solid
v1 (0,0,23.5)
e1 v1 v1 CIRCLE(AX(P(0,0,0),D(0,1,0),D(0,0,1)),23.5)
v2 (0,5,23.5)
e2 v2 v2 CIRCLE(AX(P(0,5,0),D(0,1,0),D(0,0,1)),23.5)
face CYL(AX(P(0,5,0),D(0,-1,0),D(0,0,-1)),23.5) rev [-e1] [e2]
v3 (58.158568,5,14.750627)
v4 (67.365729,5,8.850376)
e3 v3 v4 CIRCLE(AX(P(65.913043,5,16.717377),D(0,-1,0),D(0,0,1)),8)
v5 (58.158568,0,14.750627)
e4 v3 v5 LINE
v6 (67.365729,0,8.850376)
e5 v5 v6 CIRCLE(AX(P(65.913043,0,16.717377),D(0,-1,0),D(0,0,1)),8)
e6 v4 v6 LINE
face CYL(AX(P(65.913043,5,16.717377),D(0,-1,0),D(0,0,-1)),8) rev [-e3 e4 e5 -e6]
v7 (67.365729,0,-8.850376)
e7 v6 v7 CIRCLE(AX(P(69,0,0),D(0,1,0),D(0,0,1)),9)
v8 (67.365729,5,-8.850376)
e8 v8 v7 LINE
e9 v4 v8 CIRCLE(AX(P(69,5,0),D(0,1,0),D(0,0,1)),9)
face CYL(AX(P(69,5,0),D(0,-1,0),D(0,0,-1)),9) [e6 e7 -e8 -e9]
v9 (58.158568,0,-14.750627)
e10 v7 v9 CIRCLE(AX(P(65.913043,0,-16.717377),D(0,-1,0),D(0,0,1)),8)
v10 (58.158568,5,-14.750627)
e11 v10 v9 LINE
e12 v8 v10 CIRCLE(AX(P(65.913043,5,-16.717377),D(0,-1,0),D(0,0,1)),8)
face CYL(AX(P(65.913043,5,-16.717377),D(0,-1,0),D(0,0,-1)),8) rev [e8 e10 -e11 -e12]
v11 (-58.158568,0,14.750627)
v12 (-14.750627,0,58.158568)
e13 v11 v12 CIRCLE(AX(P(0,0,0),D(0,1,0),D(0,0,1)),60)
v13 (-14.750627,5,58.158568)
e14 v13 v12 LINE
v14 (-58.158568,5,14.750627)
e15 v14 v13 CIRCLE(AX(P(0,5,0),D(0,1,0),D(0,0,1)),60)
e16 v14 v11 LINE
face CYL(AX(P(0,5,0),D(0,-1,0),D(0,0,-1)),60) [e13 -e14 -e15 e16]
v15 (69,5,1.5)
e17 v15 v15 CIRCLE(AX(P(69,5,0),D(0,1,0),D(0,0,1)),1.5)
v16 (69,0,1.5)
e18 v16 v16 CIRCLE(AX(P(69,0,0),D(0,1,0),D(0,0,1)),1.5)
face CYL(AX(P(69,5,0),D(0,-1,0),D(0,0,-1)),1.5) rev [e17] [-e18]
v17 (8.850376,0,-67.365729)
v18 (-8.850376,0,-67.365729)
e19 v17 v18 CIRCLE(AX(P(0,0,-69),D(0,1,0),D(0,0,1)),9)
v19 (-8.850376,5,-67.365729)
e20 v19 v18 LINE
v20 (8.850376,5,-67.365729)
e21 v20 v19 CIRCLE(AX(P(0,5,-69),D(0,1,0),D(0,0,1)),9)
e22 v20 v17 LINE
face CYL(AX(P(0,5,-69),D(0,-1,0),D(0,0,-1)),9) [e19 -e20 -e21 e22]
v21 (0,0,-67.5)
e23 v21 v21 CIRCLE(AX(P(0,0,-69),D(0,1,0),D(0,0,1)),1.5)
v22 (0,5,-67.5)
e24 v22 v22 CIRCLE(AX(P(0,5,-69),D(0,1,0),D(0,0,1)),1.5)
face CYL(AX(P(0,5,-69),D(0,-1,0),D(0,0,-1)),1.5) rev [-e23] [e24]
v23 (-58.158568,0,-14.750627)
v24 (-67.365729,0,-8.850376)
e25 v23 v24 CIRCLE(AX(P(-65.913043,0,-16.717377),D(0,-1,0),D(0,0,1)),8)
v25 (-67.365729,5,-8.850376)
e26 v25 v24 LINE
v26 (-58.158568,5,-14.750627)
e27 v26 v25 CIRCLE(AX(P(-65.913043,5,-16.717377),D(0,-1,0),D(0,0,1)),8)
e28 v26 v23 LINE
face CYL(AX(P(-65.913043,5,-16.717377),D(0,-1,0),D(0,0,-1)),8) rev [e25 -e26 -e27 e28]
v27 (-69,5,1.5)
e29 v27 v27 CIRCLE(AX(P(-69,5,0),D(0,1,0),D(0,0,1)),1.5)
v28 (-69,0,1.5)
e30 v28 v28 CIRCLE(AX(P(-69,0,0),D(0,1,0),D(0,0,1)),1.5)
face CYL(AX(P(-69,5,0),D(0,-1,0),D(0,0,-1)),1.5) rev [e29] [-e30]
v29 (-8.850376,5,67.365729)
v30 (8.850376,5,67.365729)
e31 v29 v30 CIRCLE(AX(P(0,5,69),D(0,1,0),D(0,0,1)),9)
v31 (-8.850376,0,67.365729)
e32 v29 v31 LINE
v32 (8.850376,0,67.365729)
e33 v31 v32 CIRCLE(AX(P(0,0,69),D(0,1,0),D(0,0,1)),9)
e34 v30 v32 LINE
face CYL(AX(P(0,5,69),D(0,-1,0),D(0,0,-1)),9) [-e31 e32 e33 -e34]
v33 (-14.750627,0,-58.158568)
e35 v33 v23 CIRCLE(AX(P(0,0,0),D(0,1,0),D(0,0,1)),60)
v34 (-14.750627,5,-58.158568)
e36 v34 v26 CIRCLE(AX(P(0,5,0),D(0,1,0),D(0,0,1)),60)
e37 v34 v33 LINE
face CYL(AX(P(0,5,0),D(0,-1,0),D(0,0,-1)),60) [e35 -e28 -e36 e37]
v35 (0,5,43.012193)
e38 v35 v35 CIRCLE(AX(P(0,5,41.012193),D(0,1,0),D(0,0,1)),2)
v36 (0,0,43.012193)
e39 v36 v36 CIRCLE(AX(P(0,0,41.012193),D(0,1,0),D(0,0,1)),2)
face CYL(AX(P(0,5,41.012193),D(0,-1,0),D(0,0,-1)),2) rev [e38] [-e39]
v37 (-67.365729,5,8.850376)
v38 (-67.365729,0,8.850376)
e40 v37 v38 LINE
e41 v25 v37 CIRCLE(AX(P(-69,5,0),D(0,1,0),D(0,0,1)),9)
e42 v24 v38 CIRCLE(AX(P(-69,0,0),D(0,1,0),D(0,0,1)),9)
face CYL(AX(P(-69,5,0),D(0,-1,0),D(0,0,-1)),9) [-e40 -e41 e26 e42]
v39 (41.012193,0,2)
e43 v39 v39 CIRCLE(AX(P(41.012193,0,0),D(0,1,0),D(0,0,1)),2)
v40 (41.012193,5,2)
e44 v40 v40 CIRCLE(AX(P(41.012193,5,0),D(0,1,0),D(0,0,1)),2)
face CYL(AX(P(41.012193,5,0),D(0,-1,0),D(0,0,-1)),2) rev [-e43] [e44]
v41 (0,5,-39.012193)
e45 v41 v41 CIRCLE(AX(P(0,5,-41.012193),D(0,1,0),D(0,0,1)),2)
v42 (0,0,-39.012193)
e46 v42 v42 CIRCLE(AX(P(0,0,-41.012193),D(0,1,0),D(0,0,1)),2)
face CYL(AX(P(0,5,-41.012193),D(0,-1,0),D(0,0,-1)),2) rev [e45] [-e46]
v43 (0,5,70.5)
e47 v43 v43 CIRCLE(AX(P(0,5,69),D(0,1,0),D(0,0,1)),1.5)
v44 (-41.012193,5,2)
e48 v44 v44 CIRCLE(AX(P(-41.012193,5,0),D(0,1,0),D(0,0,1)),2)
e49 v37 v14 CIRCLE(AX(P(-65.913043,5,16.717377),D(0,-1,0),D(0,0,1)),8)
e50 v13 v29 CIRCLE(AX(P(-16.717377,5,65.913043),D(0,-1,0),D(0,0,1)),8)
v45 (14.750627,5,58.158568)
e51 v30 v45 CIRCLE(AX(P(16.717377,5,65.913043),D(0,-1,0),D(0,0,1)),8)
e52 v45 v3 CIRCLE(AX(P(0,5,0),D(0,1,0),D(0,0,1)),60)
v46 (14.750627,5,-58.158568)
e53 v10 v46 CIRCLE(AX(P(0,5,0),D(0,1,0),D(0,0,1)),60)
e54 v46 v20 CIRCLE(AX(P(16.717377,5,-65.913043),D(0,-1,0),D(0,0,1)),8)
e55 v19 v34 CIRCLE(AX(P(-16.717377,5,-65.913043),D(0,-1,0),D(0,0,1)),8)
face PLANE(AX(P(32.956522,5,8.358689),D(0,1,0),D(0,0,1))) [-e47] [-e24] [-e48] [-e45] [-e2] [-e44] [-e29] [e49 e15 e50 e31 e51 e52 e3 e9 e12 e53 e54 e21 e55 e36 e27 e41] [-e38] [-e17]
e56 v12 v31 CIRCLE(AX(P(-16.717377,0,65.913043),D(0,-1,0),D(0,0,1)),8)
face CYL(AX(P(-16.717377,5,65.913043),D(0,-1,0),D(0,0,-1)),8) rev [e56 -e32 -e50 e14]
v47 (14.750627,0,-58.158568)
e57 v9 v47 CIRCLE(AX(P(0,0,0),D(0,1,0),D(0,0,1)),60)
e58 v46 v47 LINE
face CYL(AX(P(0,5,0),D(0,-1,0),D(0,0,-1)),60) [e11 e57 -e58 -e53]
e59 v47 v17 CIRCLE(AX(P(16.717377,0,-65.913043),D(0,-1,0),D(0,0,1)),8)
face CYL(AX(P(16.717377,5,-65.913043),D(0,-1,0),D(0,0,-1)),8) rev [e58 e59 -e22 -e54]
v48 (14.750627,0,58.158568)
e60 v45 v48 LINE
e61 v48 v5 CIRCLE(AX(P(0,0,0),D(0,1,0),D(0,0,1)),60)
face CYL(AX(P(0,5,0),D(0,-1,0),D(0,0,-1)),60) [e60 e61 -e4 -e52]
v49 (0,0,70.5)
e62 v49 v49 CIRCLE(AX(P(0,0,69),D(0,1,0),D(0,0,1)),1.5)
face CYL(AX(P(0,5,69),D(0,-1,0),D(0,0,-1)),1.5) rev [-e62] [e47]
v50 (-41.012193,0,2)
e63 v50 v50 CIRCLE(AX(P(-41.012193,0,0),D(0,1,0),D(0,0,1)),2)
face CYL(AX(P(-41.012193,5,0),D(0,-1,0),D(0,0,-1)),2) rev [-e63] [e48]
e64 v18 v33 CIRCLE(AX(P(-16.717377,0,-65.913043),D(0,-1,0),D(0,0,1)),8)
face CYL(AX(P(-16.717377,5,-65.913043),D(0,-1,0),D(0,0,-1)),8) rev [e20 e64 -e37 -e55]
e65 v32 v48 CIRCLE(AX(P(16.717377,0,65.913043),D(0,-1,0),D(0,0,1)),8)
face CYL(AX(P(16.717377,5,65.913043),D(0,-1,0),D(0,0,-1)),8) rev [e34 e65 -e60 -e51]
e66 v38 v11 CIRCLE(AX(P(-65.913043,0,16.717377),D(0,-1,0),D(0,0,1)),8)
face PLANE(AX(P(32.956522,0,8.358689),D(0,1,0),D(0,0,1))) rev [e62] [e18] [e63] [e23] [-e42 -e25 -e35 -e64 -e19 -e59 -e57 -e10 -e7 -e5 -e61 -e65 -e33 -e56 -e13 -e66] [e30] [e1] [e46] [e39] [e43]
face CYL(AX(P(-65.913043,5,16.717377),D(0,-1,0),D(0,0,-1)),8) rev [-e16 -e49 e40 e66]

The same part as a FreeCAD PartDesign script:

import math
import FreeCAD as App
import Part
import Sketcher

V = App.Vector

doc = App.newDocument("Part")
body = doc.addObject("PartDesign::Body", "Body")

# Sketch on XZ plane
sketch1 = body.newObject("Sketcher::SketchObject", "Sketch")
sketch1.AttachmentSupport = (doc.getObject("XZ_Plane"), [""])
sketch1.MapMode = "FlatFace"
sketch1.addGeometry([
    Part.ArcOfCircle(Part.Circle(V(0, 0, 0), V(0, 0, 1), 60), math.radians(-75.768296), math.radians(-14.231704)),  # 0
    Part.ArcOfCircle(Part.Circle(V(16.717377, -65.913043, 0), V(0, 0, 1), 8), math.radians(104.231704), math.radians(190.462135)),  # 1
    Part.ArcOfCircle(Part.Circle(V(0, -69, 0), V(0, 0, 1), 9), math.radians(169.537865), math.radians(370.462135)),  # 2
    Part.ArcOfCircle(Part.Circle(V(-16.717377, -65.913043, 0), V(0, 0, 1), 8), math.radians(-10.462135), math.radians(75.768296)),  # 3
    Part.ArcOfCircle(Part.Circle(V(0, 0, 0), V(0, 0, 1), 60), math.radians(-165.768296), math.radians(-104.231704)),  # 4
    Part.ArcOfCircle(Part.Circle(V(-65.913043, -16.717377, 0), V(0, 0, 1), 8), math.radians(14.231704), math.radians(100.462135)),  # 5
    Part.ArcOfCircle(Part.Circle(V(-69, 0, 0), V(0, 0, 1), 9), math.radians(79.537865), math.radians(280.462135)),  # 6
    Part.ArcOfCircle(Part.Circle(V(-65.913043, 16.717377, 0), V(0, 0, 1), 8), math.radians(-100.462135), math.radians(-14.231704)),  # 7
    Part.ArcOfCircle(Part.Circle(V(0, 0, 0), V(0, 0, 1), 60), math.radians(104.231704), math.radians(165.768296)),  # 8
    Part.ArcOfCircle(Part.Circle(V(-16.717377, 65.913043, 0), V(0, 0, 1), 8), math.radians(-75.768296), math.radians(10.462135)),  # 9
    Part.ArcOfCircle(Part.Circle(V(0, 69, 0), V(0, 0, 1), 9), math.radians(-10.462135), math.radians(190.462135)),  # 10
    Part.ArcOfCircle(Part.Circle(V(16.717377, 65.913043, 0), V(0, 0, 1), 8), math.radians(169.537865), math.radians(255.768296)),  # 11
    Part.ArcOfCircle(Part.Circle(V(0, 0, 0), V(0, 0, 1), 60), math.radians(14.231704), math.radians(75.768296)),  # 12
    Part.ArcOfCircle(Part.Circle(V(65.913043, 16.717377, 0), V(0, 0, 1), 8), math.radians(-165.768296), math.radians(-79.537865)),  # 13
    Part.ArcOfCircle(Part.Circle(V(69, 0, 0), V(0, 0, 1), 9), math.radians(-100.462135), math.radians(100.462135)),  # 14
    Part.ArcOfCircle(Part.Circle(V(65.913043, -16.717377, 0), V(0, 0, 1), 8), math.radians(79.537865), math.radians(165.768296)),  # 15
    Part.Circle(V(0, 69, 0), V(0, 0, 1), 1.5),  # 16
    Part.Circle(V(0, 41.012193, 0), V(0, 0, 1), 2),  # 17
    Part.Circle(V(-69, 0, 0), V(0, 0, 1), 1.5),  # 18
    Part.Circle(V(-41.012193, 0, 0), V(0, 0, 1), 2),  # 19
    Part.Circle(V(0, 0, 0), V(0, 0, 1), 23.5),  # 20
    Part.Circle(V(41.012193, 0, 0), V(0, 0, 1), 2),  # 21
    Part.Circle(V(69, 0, 0), V(0, 0, 1), 1.5),  # 22
    Part.Circle(V(0, -41.012193, 0), V(0, 0, 1), 2),  # 23
    Part.Circle(V(0, -69, 0), V(0, 0, 1), 1.5),  # 24
], False)
sketch1.addConstraint([
    Sketcher.Constraint("Tangent", 0, 1, 1, 1),
    Sketcher.Constraint("Tangent", 1, 2, 2, 2),
    Sketcher.Constraint("Tangent", 2, 1, 3, 1),
    Sketcher.Constraint("Tangent", 3, 2, 4, 2),
    Sketcher.Constraint("Tangent", 4, 1, 5, 1),
    Sketcher.Constraint("Tangent", 5, 2, 6, 2),
    Sketcher.Constraint("Tangent", 6, 1, 7, 1),
    Sketcher.Constraint("Tangent", 7, 2, 8, 2),
    Sketcher.Constraint("Tangent", 8, 1, 9, 1),
    Sketcher.Constraint("Tangent", 9, 2, 10, 2),
    Sketcher.Constraint("Tangent", 10, 1, 11, 1),
    Sketcher.Constraint("Tangent", 11, 2, 12, 2),
    Sketcher.Constraint("Tangent", 12, 1, 13, 1),
    Sketcher.Constraint("Tangent", 13, 2, 14, 2),
    Sketcher.Constraint("Tangent", 14, 1, 15, 1),
    Sketcher.Constraint("Tangent", 15, 2, 0, 2),
    Sketcher.Constraint("Coincident", 0, 3, -1, 1),
    Sketcher.Constraint("Coincident", 4, 3, -1, 1),
    Sketcher.Constraint("Coincident", 8, 3, -1, 1),
    Sketcher.Constraint("Coincident", 12, 3, -1, 1),
    Sketcher.Constraint("Coincident", 20, 3, -1, 1),
    Sketcher.Constraint("Coincident", 16, 3, 10, 3),
    Sketcher.Constraint("Coincident", 18, 3, 6, 3),
    Sketcher.Constraint("Coincident", 22, 3, 14, 3),
    Sketcher.Constraint("Coincident", 24, 3, 2, 3),
    Sketcher.Constraint("Equal", 1, 3),
    Sketcher.Constraint("Equal", 0, 4),
    Sketcher.Constraint("Equal", 3, 5),
    Sketcher.Constraint("Equal", 2, 6),
    Sketcher.Constraint("Equal", 5, 7),
    Sketcher.Constraint("Equal", 4, 8),
    Sketcher.Constraint("Equal", 7, 9),
    Sketcher.Constraint("Equal", 6, 10),
    Sketcher.Constraint("Equal", 9, 11),
    Sketcher.Constraint("Equal", 8, 12),
    Sketcher.Constraint("Equal", 11, 13),
    Sketcher.Constraint("Equal", 10, 14),
    Sketcher.Constraint("Equal", 13, 15),
    Sketcher.Constraint("Equal", 16, 18),
    Sketcher.Constraint("Equal", 17, 19),
    Sketcher.Constraint("Equal", 19, 21),
    Sketcher.Constraint("Equal", 18, 22),
    Sketcher.Constraint("Equal", 21, 23),
    Sketcher.Constraint("Equal", 22, 24),
    Sketcher.Constraint("Symmetric", 2, 3, 10, 3, -1, 1),
    Sketcher.Constraint("Symmetric", 6, 3, 14, 3, -1, 1),
    Sketcher.Constraint("Symmetric", 19, 3, 21, 3, -1, 1),
    Sketcher.Constraint("Symmetric", 17, 3, 23, 3, -1, 1),
    Sketcher.Constraint("PointOnObject", 2, 3, -2),
    Sketcher.Constraint("PointOnObject", 6, 3, -1),
    Sketcher.Constraint("PointOnObject", 17, 3, -2),
    Sketcher.Constraint("PointOnObject", 19, 3, -1),
    Sketcher.Constraint("Diameter", 16, 3.0),
    Sketcher.Constraint("Diameter", 17, 4.0),
    Sketcher.Constraint("Diameter", 20, 47.0),
    Sketcher.Constraint("Radius", 0, 60.0),
    Sketcher.Constraint("Radius", 1, 8.0),
    Sketcher.Constraint("Radius", 2, 9.0),
    Sketcher.Constraint("DistanceY", 2, 3, -1, 1, 69.0),
    Sketcher.Constraint("DistanceX", 6, 3, -1, 1, 69.0),
    Sketcher.Constraint("DistanceY", 17, 3, 9, 3, 24.90085),
    Sketcher.Constraint("DistanceX", 5, 3, 19, 3, 24.90085),
])
pad1 = body.newObject("PartDesign::Pad", "Pad")
pad1.Profile = sketch1
pad1.Length = 5
pad1.Reversed = True

doc.recompute()
